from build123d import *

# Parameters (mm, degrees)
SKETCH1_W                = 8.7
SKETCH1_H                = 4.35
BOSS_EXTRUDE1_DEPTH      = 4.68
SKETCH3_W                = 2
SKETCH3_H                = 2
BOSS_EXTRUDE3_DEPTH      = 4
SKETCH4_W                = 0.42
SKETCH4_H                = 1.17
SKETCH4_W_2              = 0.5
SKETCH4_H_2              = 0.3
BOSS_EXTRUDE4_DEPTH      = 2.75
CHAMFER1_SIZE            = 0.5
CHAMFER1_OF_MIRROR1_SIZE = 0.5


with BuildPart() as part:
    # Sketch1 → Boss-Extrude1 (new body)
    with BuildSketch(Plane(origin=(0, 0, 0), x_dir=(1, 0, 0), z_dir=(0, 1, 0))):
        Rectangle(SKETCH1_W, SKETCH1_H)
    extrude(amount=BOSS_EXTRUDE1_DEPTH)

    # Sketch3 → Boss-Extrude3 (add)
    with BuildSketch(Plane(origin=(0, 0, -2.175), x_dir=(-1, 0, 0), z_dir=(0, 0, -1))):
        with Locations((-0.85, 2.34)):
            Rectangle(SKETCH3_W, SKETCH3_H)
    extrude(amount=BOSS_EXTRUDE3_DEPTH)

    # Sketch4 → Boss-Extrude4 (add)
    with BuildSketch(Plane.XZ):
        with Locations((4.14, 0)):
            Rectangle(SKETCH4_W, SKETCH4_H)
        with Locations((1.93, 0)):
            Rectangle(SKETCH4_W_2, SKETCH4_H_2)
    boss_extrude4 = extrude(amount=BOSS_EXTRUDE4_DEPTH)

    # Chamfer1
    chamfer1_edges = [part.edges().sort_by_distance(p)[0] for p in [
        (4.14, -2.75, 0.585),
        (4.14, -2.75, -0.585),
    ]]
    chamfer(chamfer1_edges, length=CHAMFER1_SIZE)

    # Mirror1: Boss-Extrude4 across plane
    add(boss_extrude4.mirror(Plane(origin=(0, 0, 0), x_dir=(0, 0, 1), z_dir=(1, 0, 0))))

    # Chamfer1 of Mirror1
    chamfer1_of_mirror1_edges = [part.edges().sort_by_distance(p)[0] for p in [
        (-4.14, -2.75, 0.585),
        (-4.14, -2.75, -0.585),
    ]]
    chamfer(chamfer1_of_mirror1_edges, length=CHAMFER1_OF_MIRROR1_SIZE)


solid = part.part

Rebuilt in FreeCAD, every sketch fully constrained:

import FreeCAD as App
import Part
import Sketcher

V = App.Vector
Q = App.Units.Quantity


def edges_at(feature, points):
    """Names of the edges that pass closest to the given points."""
    edges = feature.Shape.Edges
    near = lambda p: min(range(len(edges)), key=lambda i: edges[i].distToShape(Part.Vertex(*p))[0])
    return sorted({f"Edge{near(p) + 1}" for p in points})


def add_polygon(sketch, points):
    """Adds a closed chain of lines whose ends are joined by coincident constraints."""
    first, n = sketch.GeometryCount, len(points)
    for a, b in zip(points, points[1:] + points[:1]):
        sketch.addGeometry(Part.LineSegment(App.Vector(*a, 0), App.Vector(*b, 0)), False)
    for i in range(n):
        sketch.addConstraint(Sketcher.Constraint("Coincident", first + i, 2, first + (i + 1) % n, 1))

doc = App.newDocument("Part")
body = doc.addObject("PartDesign::Body", "Body")

# Sketch on XZ plane
sketch1 = doc.addObject("Sketcher::SketchObject", "Sketch")
body.addObject(sketch1)
sketch1.AttachmentSupport = (doc.XZ_Plane, [""])
sketch1.MapMode = "FlatFace"
add_polygon(sketch1, [(-4.3, -2.2), (-4.3, 2.2), (4.3, 2.2), (4.3, -2.2)])  # lines 0-3
sketch1.addConstraint([
    Sketcher.Constraint("Vertical", 0),
    Sketcher.Constraint("Horizontal", 1),
    Sketcher.Constraint("Vertical", 2),
    Sketcher.Constraint("Horizontal", 3),
    Sketcher.Constraint("Symmetric", 0, 2, 2, 2, -1, 1),
    Sketcher.Constraint("DistanceX", 1, 1, 1, 2, Q("8.7 mm")),
    Sketcher.Constraint("DistanceY", 0, 1, 0, 2, Q("4.35 mm")),
])
pad1 = doc.addObject("PartDesign::Pad", "Pad")
body.addObject(pad1)
pad1.Profile = sketch1
pad1.Length = 4.68
pad1.Reversed = True

# Sketch on XY plane
sketch2 = doc.addObject("Sketcher::SketchObject", "Sketch001")
body.addObject(sketch2)
sketch2.AttachmentSupport = (doc.XY_Plane, [""])
sketch2.MapMode = "FlatFace"
sketch2.AttachmentOffset = App.Placement(V(0, 0, -2.175), App.Rotation())
add_polygon(sketch2, [(1.9, 3.3), (1.9, 1.3), (-0.1, 1.3), (-0.1, 3.3)])  # lines 0-3
sketch2.addConstraint([
    Sketcher.Constraint("Vertical", 0),
    Sketcher.Constraint("Horizontal", 1),
    Sketcher.Constraint("Vertical", 2),
    Sketcher.Constraint("Horizontal", 3),
    Sketcher.Constraint("Equal", 3, 0),
    Sketcher.Constraint("DistanceX", 1, 2, 1, 1, Q("2 mm")),
    Sketcher.Constraint("DistanceX", -1, 1, 0, 2, Q("1.85 mm")),
    Sketcher.Constraint("DistanceY", -1, 1, 0, 2, Q("1.34 mm")),
])
pad2 = doc.addObject("PartDesign::Pad", "Pad001")
body.addObject(pad2)
pad2.Profile = sketch2
pad2.Length = 4
pad2.Reversed = True

# Sketch on XZ plane
sketch3 = doc.addObject("Sketcher::SketchObject", "Sketch002")
body.addObject(sketch3)
sketch3.AttachmentSupport = (doc.XZ_Plane, [""])
sketch3.MapMode = "FlatFace"
add_polygon(sketch3, [(3.93, 0.58), (3.93, -0.58), (4.35, -0.58), (4.35, 0.58)])  # lines 0-3
add_polygon(sketch3, [(1.68, 0.15), (1.68, -0.15), (2.18, -0.15), (2.18, 0.15)])  # lines 4-7
sketch3.addConstraint([
    Sketcher.Constraint("Vertical", 0),
    Sketcher.Constraint("Horizontal", 1),
    Sketcher.Constraint("Vertical", 2),
    Sketcher.Constraint("Horizontal", 3),
    Sketcher.Constraint("Vertical", 4),
    Sketcher.Constraint("Horizontal", 5),
    Sketcher.Constraint("Vertical", 6),
    Sketcher.Constraint("Horizontal", 7),
    Sketcher.Constraint("DistanceX", 5, 1, 5, 2, Q("0.5 mm")),
    Sketcher.Constraint("DistanceY", 4, 2, 4, 1, Q("0.3 mm")),
    Sketcher.Constraint("DistanceX", 1, 1, 1, 2, Q("0.42 mm")),
    Sketcher.Constraint("DistanceY", 0, 2, 0, 1, Q("1.17 mm")),
    Sketcher.Constraint("DistanceX", -1, 1, 0, 2, Q("3.93 mm")),
    Sketcher.Constraint("DistanceX", -1, 1, 4, 2, Q("1.68 mm")),
    Sketcher.Constraint("DistanceY", 4, 2, -1, 1, Q("0.15 mm")),
    Sketcher.Constraint("DistanceY", 0, 2, -1, 1, Q("0.585 mm")),
])
pad3 = doc.addObject("PartDesign::Pad", "Pad002")
body.addObject(pad3)
pad3.Profile = sketch3
pad3.Length = 2.75
doc.recompute()

chamfer = doc.addObject("PartDesign::Chamfer", "Chamfer")
body.addObject(chamfer)
chamfer.Base = (pad3, edges_at(pad3, [(4.14, -2.75, 0.585), (4.14, -2.75, -0.585)]))
chamfer.Size = 0.5
doc.recompute()

mirrored = doc.addObject("PartDesign::Mirrored", "Mirrored")
body.addObject(mirrored)
mirrored.Originals = [pad3]
mirrored.MirrorPlane = (doc.YZ_Plane, [""])
body.Tip = mirrored
doc.recompute()

chamfer2 = doc.addObject("PartDesign::Chamfer", "Chamfer001")
body.addObject(chamfer2)
chamfer2.Base = (mirrored, edges_at(mirrored, [(-4.14, -2.75, 0.585), (-4.14, -2.75, -0.585)]))
chamfer2.Size = 0.5

doc.recompute()
